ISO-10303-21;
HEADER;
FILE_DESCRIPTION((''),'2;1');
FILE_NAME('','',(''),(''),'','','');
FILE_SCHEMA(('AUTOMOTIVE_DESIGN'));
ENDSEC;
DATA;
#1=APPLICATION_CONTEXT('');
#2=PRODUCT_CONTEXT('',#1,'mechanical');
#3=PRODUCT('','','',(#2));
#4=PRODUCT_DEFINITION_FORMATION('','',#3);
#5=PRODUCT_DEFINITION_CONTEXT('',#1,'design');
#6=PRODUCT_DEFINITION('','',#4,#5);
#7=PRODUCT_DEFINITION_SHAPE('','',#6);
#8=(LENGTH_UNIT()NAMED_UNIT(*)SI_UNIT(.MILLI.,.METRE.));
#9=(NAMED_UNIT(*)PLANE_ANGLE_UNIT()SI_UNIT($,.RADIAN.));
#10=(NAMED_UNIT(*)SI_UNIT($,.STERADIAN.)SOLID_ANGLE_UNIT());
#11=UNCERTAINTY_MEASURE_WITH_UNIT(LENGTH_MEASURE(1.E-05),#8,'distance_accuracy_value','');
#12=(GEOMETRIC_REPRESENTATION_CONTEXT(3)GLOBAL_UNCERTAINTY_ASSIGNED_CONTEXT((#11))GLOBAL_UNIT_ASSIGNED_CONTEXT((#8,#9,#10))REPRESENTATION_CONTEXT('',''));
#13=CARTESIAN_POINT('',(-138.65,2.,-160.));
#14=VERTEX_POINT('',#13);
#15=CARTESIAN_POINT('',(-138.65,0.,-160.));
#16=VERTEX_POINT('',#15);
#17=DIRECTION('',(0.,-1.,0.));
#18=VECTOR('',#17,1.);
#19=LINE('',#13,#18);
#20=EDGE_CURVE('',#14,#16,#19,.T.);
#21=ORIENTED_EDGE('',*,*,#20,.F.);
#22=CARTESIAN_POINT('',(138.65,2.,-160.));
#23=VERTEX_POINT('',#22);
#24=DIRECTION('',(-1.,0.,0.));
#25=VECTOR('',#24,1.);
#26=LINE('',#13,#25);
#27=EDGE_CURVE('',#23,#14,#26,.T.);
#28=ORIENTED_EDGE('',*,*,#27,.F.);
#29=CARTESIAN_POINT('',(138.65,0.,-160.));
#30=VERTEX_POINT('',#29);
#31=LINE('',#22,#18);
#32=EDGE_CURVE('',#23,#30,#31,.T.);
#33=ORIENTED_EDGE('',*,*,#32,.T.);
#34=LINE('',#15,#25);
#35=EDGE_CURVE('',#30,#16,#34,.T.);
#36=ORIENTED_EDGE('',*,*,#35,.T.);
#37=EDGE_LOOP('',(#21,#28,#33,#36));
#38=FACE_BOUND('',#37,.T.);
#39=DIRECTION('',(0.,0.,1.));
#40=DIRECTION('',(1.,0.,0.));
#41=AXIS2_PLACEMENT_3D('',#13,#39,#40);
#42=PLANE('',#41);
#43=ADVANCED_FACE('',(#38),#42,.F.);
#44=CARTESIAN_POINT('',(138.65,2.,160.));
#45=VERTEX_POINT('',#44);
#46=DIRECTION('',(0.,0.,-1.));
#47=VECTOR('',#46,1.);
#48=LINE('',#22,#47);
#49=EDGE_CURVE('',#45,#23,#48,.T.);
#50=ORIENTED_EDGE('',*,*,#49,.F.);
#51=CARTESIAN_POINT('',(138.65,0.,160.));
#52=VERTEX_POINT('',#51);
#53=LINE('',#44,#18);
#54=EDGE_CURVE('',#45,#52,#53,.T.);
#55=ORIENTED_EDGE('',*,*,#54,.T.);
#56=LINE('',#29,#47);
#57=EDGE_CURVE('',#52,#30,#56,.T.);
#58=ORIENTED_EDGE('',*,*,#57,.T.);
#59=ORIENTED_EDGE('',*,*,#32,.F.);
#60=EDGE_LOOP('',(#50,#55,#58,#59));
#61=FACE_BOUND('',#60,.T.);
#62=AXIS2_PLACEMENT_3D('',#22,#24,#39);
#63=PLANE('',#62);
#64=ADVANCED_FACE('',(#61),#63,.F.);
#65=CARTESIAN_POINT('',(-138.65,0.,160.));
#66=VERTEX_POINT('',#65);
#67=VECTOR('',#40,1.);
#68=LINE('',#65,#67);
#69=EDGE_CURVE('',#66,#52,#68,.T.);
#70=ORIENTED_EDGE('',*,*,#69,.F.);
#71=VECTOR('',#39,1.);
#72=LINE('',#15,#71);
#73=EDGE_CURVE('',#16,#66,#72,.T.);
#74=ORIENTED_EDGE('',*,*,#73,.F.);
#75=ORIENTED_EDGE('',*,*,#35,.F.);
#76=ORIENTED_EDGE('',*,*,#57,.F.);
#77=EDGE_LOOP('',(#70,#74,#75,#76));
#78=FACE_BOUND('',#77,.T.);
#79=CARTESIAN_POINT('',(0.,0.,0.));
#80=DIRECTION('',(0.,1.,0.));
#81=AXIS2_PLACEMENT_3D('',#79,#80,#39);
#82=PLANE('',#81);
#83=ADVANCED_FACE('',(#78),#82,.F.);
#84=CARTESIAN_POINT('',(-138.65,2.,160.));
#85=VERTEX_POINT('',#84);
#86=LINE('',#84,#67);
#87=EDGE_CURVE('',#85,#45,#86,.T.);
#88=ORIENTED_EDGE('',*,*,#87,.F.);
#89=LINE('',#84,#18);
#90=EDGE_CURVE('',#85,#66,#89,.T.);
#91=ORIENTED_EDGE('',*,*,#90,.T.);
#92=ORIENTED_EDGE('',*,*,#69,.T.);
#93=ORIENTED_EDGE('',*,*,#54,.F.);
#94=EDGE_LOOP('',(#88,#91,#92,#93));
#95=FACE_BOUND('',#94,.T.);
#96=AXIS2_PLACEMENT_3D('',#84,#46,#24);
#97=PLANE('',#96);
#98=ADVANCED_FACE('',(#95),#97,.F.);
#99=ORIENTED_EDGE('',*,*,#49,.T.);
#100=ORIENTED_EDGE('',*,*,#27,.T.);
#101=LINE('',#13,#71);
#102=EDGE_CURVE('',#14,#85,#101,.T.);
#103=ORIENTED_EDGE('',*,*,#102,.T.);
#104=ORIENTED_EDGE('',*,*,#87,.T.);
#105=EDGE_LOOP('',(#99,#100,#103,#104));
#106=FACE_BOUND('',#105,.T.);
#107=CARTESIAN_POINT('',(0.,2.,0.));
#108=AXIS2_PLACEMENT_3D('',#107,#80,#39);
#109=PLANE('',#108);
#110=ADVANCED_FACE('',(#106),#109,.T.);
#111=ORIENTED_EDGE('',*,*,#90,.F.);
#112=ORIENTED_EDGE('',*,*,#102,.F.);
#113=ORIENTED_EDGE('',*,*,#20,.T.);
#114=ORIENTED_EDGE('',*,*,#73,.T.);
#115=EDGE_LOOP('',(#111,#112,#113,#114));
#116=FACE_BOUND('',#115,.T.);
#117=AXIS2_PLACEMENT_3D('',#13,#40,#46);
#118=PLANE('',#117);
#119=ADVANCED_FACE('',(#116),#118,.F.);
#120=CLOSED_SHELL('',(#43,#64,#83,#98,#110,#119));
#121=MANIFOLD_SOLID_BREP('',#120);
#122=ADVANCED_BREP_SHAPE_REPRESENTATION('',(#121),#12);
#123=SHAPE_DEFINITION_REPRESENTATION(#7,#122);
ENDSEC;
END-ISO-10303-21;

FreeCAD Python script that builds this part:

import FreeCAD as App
import Part
import Sketcher

V = App.Vector


def add_polygon(sketch, points):
    """Adds a closed chain of lines whose ends are joined by coincident constraints."""
    first, n = sketch.GeometryCount, len(points)
    for a, b in zip(points, points[1:] + points[:1]):
        sketch.addGeometry(Part.LineSegment(App.Vector(*a, 0), App.Vector(*b, 0)), False)
    for i in range(n):
        sketch.addConstraint(Sketcher.Constraint("Coincident", first + i, 2, first + (i + 1) % n, 1))

doc = App.newDocument("Part")
body = doc.addObject("PartDesign::Body", "Body")

# Sketch on XZ plane
sketch1 = body.newObject("Sketcher::SketchObject", "Sketch")
sketch1.AttachmentSupport = (doc.getObject("XZ_Plane"), [""])
sketch1.MapMode = "FlatFace"
add_polygon(sketch1, [(-139, -160), (-139, 160), (139, 160), (139, -160)])  # lines 0-3
sketch1.addConstraint([
    Sketcher.Constraint("Vertical", 0),
    Sketcher.Constraint("Horizontal", 1),
    Sketcher.Constraint("Vertical", 2),
    Sketcher.Constraint("Horizontal", 3),
    Sketcher.Constraint("Symmetric", 0, 2, 2, 2, -1, 1),
    Sketcher.Constraint("DistanceY", 0, 1, 0, 2, 320.0),
    Sketcher.Constraint("DistanceX", 1, 1, 1, 2, 277.3),
])
pad1 = body.newObject("PartDesign::Pad", "Pad")
pad1.Profile = sketch1
pad1.Length = 2
pad1.Reversed = True

doc.recompute()
